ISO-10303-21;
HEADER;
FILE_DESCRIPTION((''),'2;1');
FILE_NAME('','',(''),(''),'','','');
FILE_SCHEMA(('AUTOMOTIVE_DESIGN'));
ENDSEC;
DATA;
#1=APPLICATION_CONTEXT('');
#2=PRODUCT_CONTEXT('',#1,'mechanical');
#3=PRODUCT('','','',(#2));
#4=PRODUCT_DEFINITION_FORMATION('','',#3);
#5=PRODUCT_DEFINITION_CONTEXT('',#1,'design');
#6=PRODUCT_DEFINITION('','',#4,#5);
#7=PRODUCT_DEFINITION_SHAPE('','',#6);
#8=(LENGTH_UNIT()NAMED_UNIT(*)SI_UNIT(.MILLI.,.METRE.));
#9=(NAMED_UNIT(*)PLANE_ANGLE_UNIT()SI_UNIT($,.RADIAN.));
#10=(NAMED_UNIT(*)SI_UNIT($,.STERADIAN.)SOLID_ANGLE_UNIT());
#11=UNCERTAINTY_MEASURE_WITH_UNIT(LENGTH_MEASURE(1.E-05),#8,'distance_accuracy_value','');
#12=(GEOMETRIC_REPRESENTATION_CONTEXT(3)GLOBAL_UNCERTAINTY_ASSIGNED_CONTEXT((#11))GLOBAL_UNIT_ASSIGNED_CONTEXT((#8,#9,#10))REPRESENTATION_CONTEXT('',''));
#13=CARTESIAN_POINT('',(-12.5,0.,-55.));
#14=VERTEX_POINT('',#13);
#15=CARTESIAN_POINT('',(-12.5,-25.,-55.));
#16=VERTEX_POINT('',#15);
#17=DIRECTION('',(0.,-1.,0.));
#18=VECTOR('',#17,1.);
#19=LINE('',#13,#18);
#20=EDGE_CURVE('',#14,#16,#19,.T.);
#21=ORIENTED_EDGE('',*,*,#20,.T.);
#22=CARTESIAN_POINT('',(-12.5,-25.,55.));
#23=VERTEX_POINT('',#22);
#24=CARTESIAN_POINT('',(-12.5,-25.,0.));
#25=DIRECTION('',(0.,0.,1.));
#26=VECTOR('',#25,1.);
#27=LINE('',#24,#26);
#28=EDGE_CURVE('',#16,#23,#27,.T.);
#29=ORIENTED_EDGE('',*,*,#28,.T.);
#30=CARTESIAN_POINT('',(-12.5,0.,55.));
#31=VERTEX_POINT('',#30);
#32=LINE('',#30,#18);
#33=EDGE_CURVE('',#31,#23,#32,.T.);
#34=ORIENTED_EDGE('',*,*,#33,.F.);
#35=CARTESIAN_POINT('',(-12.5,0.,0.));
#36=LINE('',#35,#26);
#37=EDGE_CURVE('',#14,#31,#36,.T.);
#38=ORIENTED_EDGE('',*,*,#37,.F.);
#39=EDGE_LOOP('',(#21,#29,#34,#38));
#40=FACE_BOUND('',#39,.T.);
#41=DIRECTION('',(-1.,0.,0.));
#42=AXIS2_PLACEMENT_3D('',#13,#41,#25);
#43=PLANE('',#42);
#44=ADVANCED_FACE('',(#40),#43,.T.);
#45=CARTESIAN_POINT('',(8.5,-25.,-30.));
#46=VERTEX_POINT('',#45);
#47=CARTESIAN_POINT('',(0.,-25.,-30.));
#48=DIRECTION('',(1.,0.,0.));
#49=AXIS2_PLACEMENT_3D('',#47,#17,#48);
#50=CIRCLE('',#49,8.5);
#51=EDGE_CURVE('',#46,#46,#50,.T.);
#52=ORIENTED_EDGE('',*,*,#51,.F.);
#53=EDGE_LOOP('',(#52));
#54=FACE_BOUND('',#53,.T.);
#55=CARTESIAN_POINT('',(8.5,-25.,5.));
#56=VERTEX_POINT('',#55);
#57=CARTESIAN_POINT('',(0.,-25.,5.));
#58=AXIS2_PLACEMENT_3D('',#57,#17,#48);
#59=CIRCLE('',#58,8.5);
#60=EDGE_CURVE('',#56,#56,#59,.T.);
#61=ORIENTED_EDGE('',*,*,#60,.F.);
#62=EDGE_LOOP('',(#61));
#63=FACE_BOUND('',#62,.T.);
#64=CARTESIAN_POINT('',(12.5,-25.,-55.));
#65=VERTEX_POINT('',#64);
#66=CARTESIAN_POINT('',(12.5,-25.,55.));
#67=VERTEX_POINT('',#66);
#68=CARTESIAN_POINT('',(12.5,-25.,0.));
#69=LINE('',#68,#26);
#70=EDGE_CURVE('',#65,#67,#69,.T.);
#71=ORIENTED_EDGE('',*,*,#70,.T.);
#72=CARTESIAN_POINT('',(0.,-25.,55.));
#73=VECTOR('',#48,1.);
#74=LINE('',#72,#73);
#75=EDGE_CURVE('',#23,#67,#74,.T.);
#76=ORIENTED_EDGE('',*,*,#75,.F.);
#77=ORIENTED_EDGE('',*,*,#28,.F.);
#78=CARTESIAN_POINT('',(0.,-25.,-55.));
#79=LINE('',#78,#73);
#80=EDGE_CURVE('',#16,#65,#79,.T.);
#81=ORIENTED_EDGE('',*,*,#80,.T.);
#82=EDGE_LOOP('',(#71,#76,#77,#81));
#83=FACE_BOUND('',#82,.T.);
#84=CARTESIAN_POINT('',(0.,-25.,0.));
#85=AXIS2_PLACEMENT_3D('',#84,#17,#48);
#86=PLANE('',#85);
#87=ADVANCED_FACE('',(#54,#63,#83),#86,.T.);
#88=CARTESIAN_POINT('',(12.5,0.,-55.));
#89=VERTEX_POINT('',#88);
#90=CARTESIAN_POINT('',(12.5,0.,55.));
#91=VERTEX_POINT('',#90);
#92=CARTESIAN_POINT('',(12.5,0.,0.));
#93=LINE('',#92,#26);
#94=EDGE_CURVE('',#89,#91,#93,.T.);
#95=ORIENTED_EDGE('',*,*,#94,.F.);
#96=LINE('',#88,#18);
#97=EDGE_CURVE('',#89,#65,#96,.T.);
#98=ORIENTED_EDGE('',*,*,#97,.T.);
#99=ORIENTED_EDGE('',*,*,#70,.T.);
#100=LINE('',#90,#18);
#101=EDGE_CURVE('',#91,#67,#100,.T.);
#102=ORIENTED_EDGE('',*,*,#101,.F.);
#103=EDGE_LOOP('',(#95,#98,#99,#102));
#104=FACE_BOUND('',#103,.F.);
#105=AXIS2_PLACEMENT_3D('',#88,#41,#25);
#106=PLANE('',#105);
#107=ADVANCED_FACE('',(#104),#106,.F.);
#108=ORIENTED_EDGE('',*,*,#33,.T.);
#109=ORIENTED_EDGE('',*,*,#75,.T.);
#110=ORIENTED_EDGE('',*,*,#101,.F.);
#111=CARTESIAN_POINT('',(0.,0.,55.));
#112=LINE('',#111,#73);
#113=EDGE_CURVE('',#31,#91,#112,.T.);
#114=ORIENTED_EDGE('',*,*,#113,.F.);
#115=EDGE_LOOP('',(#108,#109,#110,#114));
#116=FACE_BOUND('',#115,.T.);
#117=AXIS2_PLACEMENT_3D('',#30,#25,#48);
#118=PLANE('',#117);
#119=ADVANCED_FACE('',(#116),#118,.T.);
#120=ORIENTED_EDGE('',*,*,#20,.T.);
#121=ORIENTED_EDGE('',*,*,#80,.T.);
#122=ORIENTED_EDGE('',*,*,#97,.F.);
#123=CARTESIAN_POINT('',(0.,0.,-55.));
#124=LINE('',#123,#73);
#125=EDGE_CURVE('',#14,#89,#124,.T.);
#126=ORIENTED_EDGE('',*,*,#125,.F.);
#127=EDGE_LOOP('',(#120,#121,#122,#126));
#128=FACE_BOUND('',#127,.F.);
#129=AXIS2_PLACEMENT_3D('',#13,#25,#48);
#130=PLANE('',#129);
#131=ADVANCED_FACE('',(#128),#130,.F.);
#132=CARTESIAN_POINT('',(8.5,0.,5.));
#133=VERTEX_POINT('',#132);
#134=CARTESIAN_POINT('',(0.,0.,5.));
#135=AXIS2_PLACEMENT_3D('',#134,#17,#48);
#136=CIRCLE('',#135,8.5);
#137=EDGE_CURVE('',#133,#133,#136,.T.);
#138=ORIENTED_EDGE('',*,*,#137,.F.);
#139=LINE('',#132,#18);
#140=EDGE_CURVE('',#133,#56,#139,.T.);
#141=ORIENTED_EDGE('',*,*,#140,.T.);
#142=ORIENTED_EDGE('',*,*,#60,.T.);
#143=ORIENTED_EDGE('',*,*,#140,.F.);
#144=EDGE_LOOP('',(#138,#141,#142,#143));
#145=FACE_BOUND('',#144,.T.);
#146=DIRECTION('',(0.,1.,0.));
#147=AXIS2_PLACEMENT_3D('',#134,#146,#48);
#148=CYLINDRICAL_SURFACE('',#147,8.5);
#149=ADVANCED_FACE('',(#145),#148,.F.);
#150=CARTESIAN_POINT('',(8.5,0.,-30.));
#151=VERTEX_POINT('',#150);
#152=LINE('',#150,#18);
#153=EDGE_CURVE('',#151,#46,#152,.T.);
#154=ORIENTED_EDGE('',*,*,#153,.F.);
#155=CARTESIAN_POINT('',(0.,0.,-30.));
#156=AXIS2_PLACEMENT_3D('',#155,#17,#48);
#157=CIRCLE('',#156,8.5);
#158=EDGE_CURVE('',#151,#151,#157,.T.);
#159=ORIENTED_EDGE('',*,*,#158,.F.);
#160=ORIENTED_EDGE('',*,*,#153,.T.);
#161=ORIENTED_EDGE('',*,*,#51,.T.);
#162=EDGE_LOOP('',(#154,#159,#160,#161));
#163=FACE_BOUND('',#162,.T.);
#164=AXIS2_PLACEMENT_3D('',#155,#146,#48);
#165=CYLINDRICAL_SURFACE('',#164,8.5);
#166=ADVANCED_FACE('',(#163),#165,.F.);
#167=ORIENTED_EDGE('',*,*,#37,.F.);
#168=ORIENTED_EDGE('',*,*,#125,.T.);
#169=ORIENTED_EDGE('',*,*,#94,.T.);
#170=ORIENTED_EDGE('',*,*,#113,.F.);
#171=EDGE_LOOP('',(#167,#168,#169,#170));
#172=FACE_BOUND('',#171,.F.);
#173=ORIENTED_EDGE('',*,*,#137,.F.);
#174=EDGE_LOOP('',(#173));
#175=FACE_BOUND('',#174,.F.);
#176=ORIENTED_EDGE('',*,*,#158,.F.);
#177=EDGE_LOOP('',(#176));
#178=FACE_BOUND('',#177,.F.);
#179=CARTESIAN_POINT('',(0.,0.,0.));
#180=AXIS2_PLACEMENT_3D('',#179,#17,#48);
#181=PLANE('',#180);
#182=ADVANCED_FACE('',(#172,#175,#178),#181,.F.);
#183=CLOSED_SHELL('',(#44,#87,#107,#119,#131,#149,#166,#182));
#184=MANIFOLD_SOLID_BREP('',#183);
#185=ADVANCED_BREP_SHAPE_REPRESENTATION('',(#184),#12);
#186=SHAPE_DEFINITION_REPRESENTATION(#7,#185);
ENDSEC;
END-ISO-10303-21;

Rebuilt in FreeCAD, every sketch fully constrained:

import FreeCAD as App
import Part
import Sketcher
from FreeCAD import Vector

doc = App.newDocument("Part")
body = doc.addObject("PartDesign::Body", "Body")

sketch1 = body.newObject("Sketcher::SketchObject", "Sketch")
sketch1.AttachmentSupport = (doc.getObject("XZ_Plane"), [""])
sketch1.MapMode = "FlatFace"
sketch1.addGeometry(Part.LineSegment(Vector(-12.5, 55, 0), Vector(-12.5, -55, 0)), False)
sketch1.addGeometry(Part.LineSegment(Vector(-12.5, -55, 0), Vector(12.5, -55, 0)), False)
sketch1.addGeometry(Part.LineSegment(Vector(12.5, -55, 0), Vector(12.5, 55, 0)), False)
sketch1.addGeometry(Part.LineSegment(Vector(12.5, 55, 0), Vector(-12.5, 55, 0)), False)
sketch1.addGeometry(Part.Circle(Vector(0, -30, 0), Vector(0, 0, 1), 8.5), False)
sketch1.addGeometry(Part.Circle(Vector(0, 5, 0), Vector(0, 0, 1), 8.5), False)
sketch1.addConstraint(Sketcher.Constraint("Coincident", 0, 2, 1, 1))
sketch1.addConstraint(Sketcher.Constraint("Coincident", 1, 2, 2, 1))
sketch1.addConstraint(Sketcher.Constraint("Coincident", 2, 2, 3, 1))
sketch1.addConstraint(Sketcher.Constraint("Coincident", 3, 2, 0, 1))
sketch1.addConstraint(Sketcher.Constraint("Vertical", 0))
sketch1.addConstraint(Sketcher.Constraint("Horizontal", 1))
sketch1.addConstraint(Sketcher.Constraint("Vertical", 2))
sketch1.addConstraint(Sketcher.Constraint("Horizontal", 3))
sketch1.addConstraint(Sketcher.Constraint("Equal", 4, 5))
sketch1.addConstraint(Sketcher.Constraint("Symmetric", 0, 2, 2, 2, -1, 1))
sketch1.addConstraint(Sketcher.Constraint("PointOnObject", 4, 3, -2))
sketch1.addConstraint(Sketcher.Constraint("PointOnObject", 5, 3, -2))
sketch1.addConstraint(Sketcher.Constraint("Diameter", 4, 17.0))
sketch1.addConstraint(Sketcher.Constraint("DistanceX", 1, 1, 1, 2, 25.0))
sketch1.addConstraint(Sketcher.Constraint("DistanceY", 0, 2, 0, 1, 110.0))
sketch1.addConstraint(Sketcher.Constraint("DistanceY", 4, 3, -1, 1, 30.0))
sketch1.addConstraint(Sketcher.Constraint("DistanceY", -1, 1, 5, 3, 5.0))
pad1 = body.newObject("PartDesign::Pad", "Pad")
pad1.Profile = sketch1
pad1.Length = 25

doc.recompute()
